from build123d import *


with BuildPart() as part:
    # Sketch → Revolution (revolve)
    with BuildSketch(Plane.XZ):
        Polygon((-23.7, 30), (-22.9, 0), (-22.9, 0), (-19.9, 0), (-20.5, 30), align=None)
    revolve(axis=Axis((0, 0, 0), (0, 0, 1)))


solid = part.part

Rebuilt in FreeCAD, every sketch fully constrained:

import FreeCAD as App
import Part
import Sketcher

V = App.Vector


def add_polygon(sketch, points):
    """Adds a closed chain of lines whose ends are joined by coincident constraints."""
    first, n = sketch.GeometryCount, len(points)
    for a, b in zip(points, points[1:] + points[:1]):
        sketch.addGeometry(Part.LineSegment(App.Vector(*a, 0), App.Vector(*b, 0)), False)
    for i in range(n):
        sketch.addConstraint(Sketcher.Constraint("Coincident", first + i, 2, first + (i + 1) % n, 1))

doc = App.newDocument("Part")
body = doc.addObject("PartDesign::Body", "Body")

# Sketch on XZ plane
sketch1 = body.newObject("Sketcher::SketchObject", "Sketch")
sketch1.AttachmentSupport = (doc.getObject("XZ_Plane"), [""])
sketch1.MapMode = "FlatFace"
add_polygon(sketch1, [(-23.7, 30), (-22.9, 0), (-19.9, 0), (-20.5, 30)])  # lines 0-3
sketch1.addConstraint(Sketcher.Constraint("Horizontal", 1))
sketch1.addConstraint(Sketcher.Constraint("Horizontal", 3))
sketch1.addConstraint(Sketcher.Constraint("PointOnObject", 0, 2, -1))
sketch1.addConstraint(Sketcher.Constraint("DistanceX", 1, 1, 1, 2, 3.0))
sketch1.addConstraint(Sketcher.Constraint("DistanceX", 3, 2, 3, 1, 3.2))
sketch1.addConstraint(Sketcher.Constraint("DistanceY", -1, 1, 2, 2, 30.0))
sketch1.addConstraint(Sketcher.Constraint("DistanceX", 0, 2, -1, 1, 22.9))
sketch1.addConstraint(Sketcher.Constraint("DistanceX", 2, 2, -1, 1, 20.5))
revolution = body.newObject("PartDesign::Revolution", "Revolution")
revolution.Profile = sketch1
revolution.ReferenceAxis = (sketch1, ["V_Axis"])
revolution.Angle = 360

doc.recompute()
